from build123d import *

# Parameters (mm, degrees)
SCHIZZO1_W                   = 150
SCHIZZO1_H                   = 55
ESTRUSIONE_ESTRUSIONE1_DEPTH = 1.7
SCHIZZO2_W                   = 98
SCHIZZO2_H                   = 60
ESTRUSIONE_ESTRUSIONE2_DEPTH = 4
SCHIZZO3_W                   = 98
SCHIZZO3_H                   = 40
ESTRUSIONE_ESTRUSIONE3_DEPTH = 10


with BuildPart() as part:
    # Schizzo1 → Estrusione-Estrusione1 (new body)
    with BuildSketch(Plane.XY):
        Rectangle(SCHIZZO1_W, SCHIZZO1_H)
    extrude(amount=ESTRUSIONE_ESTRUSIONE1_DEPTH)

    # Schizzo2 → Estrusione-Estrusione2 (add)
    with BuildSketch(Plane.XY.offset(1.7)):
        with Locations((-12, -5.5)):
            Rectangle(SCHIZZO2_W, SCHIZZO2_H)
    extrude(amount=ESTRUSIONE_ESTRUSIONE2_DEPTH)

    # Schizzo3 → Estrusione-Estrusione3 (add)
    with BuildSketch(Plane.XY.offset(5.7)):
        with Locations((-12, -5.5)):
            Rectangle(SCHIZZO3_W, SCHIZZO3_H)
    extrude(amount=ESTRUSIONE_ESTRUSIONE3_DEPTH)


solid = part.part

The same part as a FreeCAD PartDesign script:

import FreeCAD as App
import Part
import Sketcher
Q = App.Units.Quantity

doc = App.newDocument("Part")
body = doc.addObject("PartDesign::Body", "Body")

sketch1 = body.newObject("Sketcher::SketchObject", "Sketch")
sketch1.AttachmentSupport = (doc.getObject("XY_Plane"), [""])
sketch1.MapMode = "FlatFace"
sketch1.addGeometry([
    Part.LineSegment(App.Vector(-75, 28, 0), App.Vector(-75, -28, 0)),
    Part.LineSegment(App.Vector(-75, -28, 0), App.Vector(75, -28, 0)),
    Part.LineSegment(App.Vector(75, -28, 0), App.Vector(75, 28, 0)),
    Part.LineSegment(App.Vector(75, 28, 0), App.Vector(-75, 28, 0)),
], False)
sketch1.addConstraint([
    Sketcher.Constraint("Coincident", 0, 2, 1, 1),
    Sketcher.Constraint("Coincident", 1, 2, 2, 1),
    Sketcher.Constraint("Coincident", 2, 2, 3, 1),
    Sketcher.Constraint("Coincident", 3, 2, 0, 1),
    Sketcher.Constraint("Vertical", 0),
    Sketcher.Constraint("Horizontal", 1),
    Sketcher.Constraint("Vertical", 2),
    Sketcher.Constraint("Horizontal", 3),
    Sketcher.Constraint("Symmetric", 0, 2, 2, 2, -1, 1),
    Sketcher.Constraint("DistanceX", 1, 1, 1, 2, Q("150 mm")),
    Sketcher.Constraint("DistanceY", 0, 2, 0, 1, Q("55 mm")),
])
pad1 = body.newObject("PartDesign::Pad", "Pad")
pad1.Profile = sketch1
pad1.Length = 1.7

sketch2 = body.newObject("Sketcher::SketchObject", "Sketch001")
sketch2.AttachmentSupport = (doc.getObject("XY_Plane"), [""])
sketch2.MapMode = "FlatFace"
sketch2.AttachmentOffset = App.Placement(App.Vector(0, 0, 1.7), App.Rotation())
sketch2.addGeometry([
    Part.LineSegment(App.Vector(-61, 24, 0), App.Vector(-61, -36, 0)),
    Part.LineSegment(App.Vector(-61, -36, 0), App.Vector(37, -36, 0)),
    Part.LineSegment(App.Vector(37, -36, 0), App.Vector(37, 24, 0)),
    Part.LineSegment(App.Vector(37, 24, 0), App.Vector(-61, 24, 0)),
], False)
sketch2.addConstraint([
    Sketcher.Constraint("Coincident", 0, 2, 1, 1),
    Sketcher.Constraint("Coincident", 1, 2, 2, 1),
    Sketcher.Constraint("Coincident", 2, 2, 3, 1),
    Sketcher.Constraint("Coincident", 3, 2, 0, 1),
    Sketcher.Constraint("Vertical", 0),
    Sketcher.Constraint("Horizontal", 1),
    Sketcher.Constraint("Vertical", 2),
    Sketcher.Constraint("Horizontal", 3),
    Sketcher.Constraint("DistanceX", 1, 1, 1, 2, Q("98 mm")),
    Sketcher.Constraint("DistanceY", 0, 2, 0, 1, Q("60 mm")),
    Sketcher.Constraint("DistanceX", 0, 2, -1, 1, Q("61 mm")),
    Sketcher.Constraint("DistanceY", 0, 2, -1, 1, Q("35.5 mm")),
])
pad2 = body.newObject("PartDesign::Pad", "Pad001")
pad2.Profile = sketch2
pad2.Length = 4

sketch3 = body.newObject("Sketcher::SketchObject", "Sketch002")
sketch3.AttachmentSupport = (doc.getObject("XY_Plane"), [""])
sketch3.MapMode = "FlatFace"
sketch3.AttachmentOffset = App.Placement(App.Vector(0, 0, 5.7), App.Rotation())
sketch3.addGeometry([
    Part.LineSegment(App.Vector(-61, 14, 0), App.Vector(-61, -26, 0)),
    Part.LineSegment(App.Vector(-61, -26, 0), App.Vector(37, -26, 0)),
    Part.LineSegment(App.Vector(37, -26, 0), App.Vector(37, 14, 0)),
    Part.LineSegment(App.Vector(37, 14, 0), App.Vector(-61, 14, 0)),
], False)
sketch3.addConstraint([
    Sketcher.Constraint("Coincident", 0, 2, 1, 1),
    Sketcher.Constraint("Coincident", 1, 2, 2, 1),
    Sketcher.Constraint("Coincident", 2, 2, 3, 1),
    Sketcher.Constraint("Coincident", 3, 2, 0, 1),
    Sketcher.Constraint("Vertical", 0),
    Sketcher.Constraint("Horizontal", 1),
    Sketcher.Constraint("Vertical", 2),
    Sketcher.Constraint("Horizontal", 3),
    Sketcher.Constraint("DistanceX", 1, 1, 1, 2, Q("98 mm")),
    Sketcher.Constraint("DistanceY", 0, 2, 0, 1, Q("40 mm")),
    Sketcher.Constraint("DistanceX", 0, 2, -1, 1, Q("61 mm")),
    Sketcher.Constraint("DistanceY", 0, 2, -1, 1, Q("25.5 mm")),
])
pad3 = body.newObject("PartDesign::Pad", "Pad002")
pad3.Profile = sketch3
pad3.Length = 10

doc.recompute()
